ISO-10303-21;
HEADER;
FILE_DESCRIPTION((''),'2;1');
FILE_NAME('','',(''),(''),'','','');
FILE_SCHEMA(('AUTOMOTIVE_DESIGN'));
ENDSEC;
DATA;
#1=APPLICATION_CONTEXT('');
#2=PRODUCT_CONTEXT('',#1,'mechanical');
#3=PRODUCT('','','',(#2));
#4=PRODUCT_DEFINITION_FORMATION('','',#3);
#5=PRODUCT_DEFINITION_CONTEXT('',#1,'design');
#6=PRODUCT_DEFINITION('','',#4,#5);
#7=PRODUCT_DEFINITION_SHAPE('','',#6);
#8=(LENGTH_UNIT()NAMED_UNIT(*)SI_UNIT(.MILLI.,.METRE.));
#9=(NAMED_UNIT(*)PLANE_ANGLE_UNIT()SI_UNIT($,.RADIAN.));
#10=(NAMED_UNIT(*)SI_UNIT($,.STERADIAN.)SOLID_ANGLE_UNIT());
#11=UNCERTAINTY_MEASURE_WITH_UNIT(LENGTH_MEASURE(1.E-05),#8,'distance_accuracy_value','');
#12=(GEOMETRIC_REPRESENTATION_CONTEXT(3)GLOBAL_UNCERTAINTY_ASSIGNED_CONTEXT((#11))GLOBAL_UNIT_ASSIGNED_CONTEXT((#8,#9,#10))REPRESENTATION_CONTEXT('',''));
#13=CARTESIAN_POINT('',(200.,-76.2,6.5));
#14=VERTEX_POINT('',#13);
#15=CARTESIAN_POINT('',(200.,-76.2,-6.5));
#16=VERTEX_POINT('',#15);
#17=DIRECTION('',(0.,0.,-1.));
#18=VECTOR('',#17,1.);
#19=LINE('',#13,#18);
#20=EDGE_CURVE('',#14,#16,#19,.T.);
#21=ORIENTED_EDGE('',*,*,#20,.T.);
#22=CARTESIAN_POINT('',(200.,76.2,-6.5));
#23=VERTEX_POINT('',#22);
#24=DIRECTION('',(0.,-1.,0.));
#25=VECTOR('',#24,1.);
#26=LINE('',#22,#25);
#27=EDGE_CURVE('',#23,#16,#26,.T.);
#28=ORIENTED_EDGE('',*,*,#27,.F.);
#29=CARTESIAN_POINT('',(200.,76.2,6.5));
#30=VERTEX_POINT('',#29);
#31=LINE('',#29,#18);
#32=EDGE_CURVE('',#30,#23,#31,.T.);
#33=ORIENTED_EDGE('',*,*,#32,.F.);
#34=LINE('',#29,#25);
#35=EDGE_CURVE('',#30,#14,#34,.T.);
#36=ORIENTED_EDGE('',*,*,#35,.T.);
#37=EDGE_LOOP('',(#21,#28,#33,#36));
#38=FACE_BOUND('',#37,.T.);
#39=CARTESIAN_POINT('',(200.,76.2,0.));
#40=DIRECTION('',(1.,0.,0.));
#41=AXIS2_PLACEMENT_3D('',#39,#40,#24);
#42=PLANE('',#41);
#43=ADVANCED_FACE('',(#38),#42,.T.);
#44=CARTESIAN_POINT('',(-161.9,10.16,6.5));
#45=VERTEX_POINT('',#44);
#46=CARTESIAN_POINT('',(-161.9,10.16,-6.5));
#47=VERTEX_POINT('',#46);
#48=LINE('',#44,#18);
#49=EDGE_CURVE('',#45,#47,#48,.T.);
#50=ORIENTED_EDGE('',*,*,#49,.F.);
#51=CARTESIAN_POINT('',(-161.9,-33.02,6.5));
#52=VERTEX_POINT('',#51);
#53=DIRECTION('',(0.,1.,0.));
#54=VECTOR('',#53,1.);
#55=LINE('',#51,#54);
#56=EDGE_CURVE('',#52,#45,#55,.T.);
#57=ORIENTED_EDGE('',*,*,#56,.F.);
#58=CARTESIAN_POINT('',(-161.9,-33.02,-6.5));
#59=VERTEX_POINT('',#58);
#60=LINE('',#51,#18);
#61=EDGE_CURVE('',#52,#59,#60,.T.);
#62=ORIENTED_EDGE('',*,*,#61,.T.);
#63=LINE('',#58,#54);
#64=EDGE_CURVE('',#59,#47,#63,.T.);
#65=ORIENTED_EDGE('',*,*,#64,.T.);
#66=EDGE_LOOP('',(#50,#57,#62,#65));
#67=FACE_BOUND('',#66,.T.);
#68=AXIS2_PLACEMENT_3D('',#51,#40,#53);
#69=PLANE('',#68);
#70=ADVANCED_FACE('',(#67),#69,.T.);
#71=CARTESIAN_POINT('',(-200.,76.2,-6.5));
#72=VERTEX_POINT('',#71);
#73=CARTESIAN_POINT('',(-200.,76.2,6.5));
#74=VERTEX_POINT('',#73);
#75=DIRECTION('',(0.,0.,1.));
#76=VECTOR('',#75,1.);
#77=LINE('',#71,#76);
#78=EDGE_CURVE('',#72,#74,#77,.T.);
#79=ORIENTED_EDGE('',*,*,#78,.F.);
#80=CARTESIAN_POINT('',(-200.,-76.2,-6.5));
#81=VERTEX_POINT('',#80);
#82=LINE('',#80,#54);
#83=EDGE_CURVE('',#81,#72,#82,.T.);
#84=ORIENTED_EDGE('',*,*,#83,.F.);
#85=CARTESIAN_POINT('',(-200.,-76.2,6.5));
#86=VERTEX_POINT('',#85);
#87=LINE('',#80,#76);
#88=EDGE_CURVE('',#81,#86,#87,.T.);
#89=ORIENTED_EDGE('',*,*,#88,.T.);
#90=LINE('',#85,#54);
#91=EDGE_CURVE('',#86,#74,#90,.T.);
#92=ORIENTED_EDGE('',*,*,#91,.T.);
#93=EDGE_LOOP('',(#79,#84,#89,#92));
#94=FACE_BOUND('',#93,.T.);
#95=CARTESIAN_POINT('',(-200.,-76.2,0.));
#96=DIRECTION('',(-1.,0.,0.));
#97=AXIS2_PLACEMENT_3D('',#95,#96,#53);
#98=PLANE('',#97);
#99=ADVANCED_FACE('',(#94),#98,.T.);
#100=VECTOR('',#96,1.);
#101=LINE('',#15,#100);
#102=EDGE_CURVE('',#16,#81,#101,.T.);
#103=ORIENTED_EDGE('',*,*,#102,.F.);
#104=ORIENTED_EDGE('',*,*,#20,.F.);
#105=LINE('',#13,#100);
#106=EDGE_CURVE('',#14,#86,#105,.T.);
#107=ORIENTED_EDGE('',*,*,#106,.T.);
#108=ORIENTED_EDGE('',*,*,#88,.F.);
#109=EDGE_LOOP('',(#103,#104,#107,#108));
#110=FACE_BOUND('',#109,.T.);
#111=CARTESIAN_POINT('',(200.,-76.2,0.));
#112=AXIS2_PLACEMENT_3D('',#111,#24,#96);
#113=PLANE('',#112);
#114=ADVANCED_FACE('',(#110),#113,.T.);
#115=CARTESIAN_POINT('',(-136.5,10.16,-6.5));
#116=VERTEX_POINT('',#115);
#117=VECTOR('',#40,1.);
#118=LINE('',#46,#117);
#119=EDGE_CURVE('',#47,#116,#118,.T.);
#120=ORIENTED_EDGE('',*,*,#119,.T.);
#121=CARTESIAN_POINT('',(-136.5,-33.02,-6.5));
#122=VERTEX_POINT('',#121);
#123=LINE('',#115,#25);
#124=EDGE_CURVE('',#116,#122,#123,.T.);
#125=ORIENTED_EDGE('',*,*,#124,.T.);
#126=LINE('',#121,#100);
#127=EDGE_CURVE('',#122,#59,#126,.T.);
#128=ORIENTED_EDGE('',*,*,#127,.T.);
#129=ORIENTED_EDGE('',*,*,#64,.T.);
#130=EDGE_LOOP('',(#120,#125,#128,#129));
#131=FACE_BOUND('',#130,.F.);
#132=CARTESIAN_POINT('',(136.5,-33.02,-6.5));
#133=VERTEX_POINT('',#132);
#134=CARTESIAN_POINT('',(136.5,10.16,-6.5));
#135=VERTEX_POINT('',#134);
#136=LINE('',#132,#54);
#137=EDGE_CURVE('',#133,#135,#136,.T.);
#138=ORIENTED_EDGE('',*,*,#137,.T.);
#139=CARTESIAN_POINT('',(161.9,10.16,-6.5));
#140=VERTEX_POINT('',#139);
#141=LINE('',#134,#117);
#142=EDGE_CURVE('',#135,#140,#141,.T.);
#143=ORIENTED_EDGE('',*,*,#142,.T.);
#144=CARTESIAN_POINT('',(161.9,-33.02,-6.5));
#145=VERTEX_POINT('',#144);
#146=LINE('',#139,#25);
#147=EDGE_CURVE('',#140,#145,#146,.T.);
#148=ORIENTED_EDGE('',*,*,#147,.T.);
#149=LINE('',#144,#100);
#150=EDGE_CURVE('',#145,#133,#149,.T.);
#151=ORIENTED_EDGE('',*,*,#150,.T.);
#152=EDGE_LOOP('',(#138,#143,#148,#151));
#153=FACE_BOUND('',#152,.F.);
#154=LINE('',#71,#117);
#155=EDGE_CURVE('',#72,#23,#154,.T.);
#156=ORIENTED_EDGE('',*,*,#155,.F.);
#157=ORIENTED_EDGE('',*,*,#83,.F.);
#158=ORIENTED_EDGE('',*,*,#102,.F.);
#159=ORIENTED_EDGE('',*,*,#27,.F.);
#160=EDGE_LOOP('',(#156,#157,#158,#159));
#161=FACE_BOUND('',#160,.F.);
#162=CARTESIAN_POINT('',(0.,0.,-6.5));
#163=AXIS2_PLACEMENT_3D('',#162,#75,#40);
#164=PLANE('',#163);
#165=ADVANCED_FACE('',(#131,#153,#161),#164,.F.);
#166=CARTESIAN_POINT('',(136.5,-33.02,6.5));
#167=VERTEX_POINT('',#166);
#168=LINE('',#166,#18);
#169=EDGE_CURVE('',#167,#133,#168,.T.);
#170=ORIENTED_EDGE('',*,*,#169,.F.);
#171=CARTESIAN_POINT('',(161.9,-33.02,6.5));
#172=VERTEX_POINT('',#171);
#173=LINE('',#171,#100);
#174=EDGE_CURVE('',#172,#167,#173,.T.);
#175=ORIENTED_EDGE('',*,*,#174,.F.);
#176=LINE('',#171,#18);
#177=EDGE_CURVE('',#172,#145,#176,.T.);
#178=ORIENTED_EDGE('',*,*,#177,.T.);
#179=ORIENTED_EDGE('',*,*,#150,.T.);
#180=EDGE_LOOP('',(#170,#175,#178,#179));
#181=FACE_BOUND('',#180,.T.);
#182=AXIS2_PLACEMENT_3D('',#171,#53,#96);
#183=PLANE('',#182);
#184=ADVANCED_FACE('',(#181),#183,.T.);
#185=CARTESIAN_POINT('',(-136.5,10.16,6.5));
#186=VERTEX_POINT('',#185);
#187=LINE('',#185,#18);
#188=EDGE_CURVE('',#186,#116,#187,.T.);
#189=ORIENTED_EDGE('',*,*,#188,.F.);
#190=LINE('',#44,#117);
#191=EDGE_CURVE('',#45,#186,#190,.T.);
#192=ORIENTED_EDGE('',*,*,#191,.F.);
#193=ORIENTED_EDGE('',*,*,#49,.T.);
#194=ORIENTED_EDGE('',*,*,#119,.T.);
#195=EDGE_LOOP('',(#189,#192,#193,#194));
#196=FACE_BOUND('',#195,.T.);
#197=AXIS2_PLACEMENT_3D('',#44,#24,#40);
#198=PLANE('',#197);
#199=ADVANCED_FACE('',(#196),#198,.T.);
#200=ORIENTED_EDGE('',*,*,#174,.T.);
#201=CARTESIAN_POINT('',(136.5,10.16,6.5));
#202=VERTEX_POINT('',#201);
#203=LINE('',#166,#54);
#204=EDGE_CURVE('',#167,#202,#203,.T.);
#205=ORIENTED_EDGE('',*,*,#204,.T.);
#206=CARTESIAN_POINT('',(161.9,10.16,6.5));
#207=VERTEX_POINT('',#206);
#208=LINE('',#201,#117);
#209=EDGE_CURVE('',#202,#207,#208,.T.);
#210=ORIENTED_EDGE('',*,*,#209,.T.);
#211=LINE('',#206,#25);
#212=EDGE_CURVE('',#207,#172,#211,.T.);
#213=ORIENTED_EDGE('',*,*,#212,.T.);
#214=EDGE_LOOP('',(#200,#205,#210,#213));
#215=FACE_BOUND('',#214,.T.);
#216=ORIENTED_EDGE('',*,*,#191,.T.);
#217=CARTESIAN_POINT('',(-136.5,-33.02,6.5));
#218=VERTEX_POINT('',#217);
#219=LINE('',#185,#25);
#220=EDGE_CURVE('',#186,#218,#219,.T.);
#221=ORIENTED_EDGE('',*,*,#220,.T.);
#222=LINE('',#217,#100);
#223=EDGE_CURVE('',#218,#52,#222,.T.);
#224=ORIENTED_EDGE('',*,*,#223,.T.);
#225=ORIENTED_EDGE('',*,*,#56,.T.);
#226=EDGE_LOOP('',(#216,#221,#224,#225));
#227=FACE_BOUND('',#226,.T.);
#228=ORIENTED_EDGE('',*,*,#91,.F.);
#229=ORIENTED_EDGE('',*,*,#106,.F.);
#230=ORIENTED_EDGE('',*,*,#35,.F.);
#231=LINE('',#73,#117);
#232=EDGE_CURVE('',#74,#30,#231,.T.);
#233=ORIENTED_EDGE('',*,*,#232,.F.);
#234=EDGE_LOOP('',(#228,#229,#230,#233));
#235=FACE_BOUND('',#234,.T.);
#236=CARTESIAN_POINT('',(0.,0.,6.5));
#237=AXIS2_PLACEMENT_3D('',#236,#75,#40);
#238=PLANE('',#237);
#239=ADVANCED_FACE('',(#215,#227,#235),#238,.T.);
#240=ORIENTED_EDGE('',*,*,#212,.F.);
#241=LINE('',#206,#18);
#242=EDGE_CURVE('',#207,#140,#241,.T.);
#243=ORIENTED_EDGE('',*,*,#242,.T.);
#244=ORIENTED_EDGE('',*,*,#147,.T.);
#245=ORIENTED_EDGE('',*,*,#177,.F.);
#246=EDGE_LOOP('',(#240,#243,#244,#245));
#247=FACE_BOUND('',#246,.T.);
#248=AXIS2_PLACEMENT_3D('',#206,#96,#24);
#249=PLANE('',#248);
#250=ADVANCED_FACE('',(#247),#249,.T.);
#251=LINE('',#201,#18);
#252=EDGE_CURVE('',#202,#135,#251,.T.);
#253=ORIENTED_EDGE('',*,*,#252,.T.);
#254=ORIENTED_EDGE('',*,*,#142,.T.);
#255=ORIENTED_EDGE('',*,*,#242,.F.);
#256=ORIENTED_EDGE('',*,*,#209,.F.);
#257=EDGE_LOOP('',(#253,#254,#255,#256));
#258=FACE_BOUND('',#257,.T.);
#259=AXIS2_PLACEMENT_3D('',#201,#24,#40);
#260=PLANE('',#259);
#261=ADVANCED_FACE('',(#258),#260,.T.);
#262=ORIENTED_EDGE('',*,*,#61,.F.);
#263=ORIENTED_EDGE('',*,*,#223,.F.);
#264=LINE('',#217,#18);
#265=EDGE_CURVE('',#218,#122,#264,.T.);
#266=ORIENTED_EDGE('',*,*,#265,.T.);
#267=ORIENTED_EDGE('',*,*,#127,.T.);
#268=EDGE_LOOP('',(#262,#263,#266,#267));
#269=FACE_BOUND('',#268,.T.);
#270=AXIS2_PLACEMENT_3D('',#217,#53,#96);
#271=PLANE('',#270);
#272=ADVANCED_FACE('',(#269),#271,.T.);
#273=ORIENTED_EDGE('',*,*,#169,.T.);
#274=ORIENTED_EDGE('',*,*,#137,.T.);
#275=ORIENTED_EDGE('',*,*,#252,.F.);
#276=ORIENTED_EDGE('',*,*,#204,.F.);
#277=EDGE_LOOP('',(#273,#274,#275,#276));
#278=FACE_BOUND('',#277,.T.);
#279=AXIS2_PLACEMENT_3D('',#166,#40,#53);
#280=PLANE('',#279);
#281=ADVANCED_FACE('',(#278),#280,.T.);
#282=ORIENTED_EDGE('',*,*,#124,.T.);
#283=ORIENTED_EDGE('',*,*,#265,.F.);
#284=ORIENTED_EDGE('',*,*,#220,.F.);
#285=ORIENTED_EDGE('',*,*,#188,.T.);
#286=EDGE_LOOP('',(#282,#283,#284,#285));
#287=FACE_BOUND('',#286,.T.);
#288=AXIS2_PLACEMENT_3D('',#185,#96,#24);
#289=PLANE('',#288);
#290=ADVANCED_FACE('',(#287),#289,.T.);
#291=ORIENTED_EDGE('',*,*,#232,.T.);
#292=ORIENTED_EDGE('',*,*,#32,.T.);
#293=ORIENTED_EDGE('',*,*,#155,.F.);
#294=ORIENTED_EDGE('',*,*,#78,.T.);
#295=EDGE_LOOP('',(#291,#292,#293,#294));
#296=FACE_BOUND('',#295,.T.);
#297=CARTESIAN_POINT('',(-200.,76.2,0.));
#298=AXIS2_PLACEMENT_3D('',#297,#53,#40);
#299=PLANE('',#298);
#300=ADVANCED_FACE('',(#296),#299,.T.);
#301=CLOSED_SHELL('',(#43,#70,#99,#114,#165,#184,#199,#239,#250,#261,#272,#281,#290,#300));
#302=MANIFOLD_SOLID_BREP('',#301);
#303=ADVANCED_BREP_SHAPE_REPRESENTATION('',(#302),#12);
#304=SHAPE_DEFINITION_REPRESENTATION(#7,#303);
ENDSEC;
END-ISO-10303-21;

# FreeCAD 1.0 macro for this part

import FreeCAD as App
import Part
import Sketcher
Q = App.Units.Quantity

doc = App.newDocument("Part")
params = doc.addObject("Spreadsheet::Sheet", "Params")
for row, (alias, value) in enumerate([
    ("sketch1_height", "6 in"),
    ("pad1_length", "0.511811 in"),
    ("sketch2_width", "1 in"),
    ("sketch2_height", "1.7 in"),
    ("pocket1_length", "0.511811 in"),
], start=1):
    params.set(f"A{row}", alias)
    params.set(f"B{row}", "=" + value)
    params.setAlias(f"B{row}", alias)

body = doc.addObject("PartDesign::Body", "Body")

# Sketch on XY plane
sketch1 = body.newObject("Sketcher::SketchObject", "Sketch")
sketch1.AttachmentSupport = (doc.getObject("XY_Plane"), [""])
sketch1.MapMode = "FlatFace"
sketch1.addGeometry([
    Part.LineSegment(App.Vector(200, 76.2, 0), App.Vector(-200, 76.2, 0)),
    Part.LineSegment(App.Vector(-200, 76.2, 0), App.Vector(-200, -76.2, 0)),
    Part.LineSegment(App.Vector(-200, -76.2, 0), App.Vector(200, -76.2, 0)),
    Part.LineSegment(App.Vector(200, -76.2, 0), App.Vector(200, 76.2, 0)),
], False)
sketch1.addConstraint([
    Sketcher.Constraint("Coincident", 0, 2, 1, 1),
    Sketcher.Constraint("Coincident", 1, 2, 2, 1),
    Sketcher.Constraint("Coincident", 2, 2, 3, 1),
    Sketcher.Constraint("Coincident", 3, 2, 0, 1),
    Sketcher.Constraint("Horizontal", 0),
    Sketcher.Constraint("Vertical", 1),
    Sketcher.Constraint("Horizontal", 2),
    Sketcher.Constraint("Vertical", 3),
    Sketcher.Constraint("Symmetric", 0, 2, 2, 2, -1, 1),
    Sketcher.Constraint("DistanceY", 1, 2, 1, 1, Q("6 in")),
    Sketcher.Constraint("DistanceX", 0, 2, 0, 1, Q("400 mm")),
])
sketch1.setExpression("Constraints[9]", "Params.sketch1_height")
pad1 = body.newObject("PartDesign::Pad", "Pad")
pad1.Profile = sketch1
pad1.setExpression("Length", "Params.pad1_length")
pad1.Midplane = True

# Sketch on XY plane
sketch2 = body.newObject("Sketcher::SketchObject", "Sketch001")
sketch2.AttachmentSupport = (doc.getObject("XY_Plane"), [""])
sketch2.MapMode = "FlatFace"
sketch2.AttachmentOffset = App.Placement(App.Vector(0, 0, 0.2559055 * 25.4), App.Rotation())
sketch2.addGeometry([
    Part.LineSegment(App.Vector(-136.5, 10.16, 0), App.Vector(-161.9, 10.16, 0)),  # 0
    Part.LineSegment(App.Vector(-161.9, 10.16, 0), App.Vector(-161.9, -33.02, 0)),  # 1
    Part.LineSegment(App.Vector(-161.9, -33.02, 0), App.Vector(-136.5, -33.02, 0)),  # 2
    Part.LineSegment(App.Vector(-136.5, -33.02, 0), App.Vector(-136.5, 10.16, 0)),  # 3
    Part.LineSegment(App.Vector(136.5, -33.02, 0), App.Vector(161.9, -33.02, 0)),  # 4
    Part.LineSegment(App.Vector(161.9, -33.02, 0), App.Vector(161.9, 10.16, 0)),  # 5
    Part.LineSegment(App.Vector(161.9, 10.16, 0), App.Vector(136.5, 10.16, 0)),  # 6
    Part.LineSegment(App.Vector(136.5, 10.16, 0), App.Vector(136.5, -33.02, 0)),  # 7
], False)
sketch2.addConstraint([
    Sketcher.Constraint("Coincident", 0, 2, 1, 1),
    Sketcher.Constraint("Coincident", 1, 2, 2, 1),
    Sketcher.Constraint("Coincident", 2, 2, 3, 1),
    Sketcher.Constraint("Coincident", 3, 2, 0, 1),
    Sketcher.Constraint("Coincident", 4, 2, 5, 1),
    Sketcher.Constraint("Coincident", 5, 2, 6, 1),
    Sketcher.Constraint("Coincident", 6, 2, 7, 1),
    Sketcher.Constraint("Coincident", 7, 2, 4, 1),
    Sketcher.Constraint("Horizontal", 0),
    Sketcher.Constraint("Vertical", 1),
    Sketcher.Constraint("Horizontal", 2),
    Sketcher.Constraint("Vertical", 3),
    Sketcher.Constraint("Horizontal", 4),
    Sketcher.Constraint("Vertical", 5),
    Sketcher.Constraint("Horizontal", 6),
    Sketcher.Constraint("Vertical", 7),
    Sketcher.Constraint("Symmetric", 1, 2, 4, 2, -2),
    Sketcher.Constraint("Symmetric", 3, 2, 6, 2, -2),
    Sketcher.Constraint("DistanceX", 0, 2, 0, 1, Q("1 in")),
    Sketcher.Constraint("DistanceY", 1, 2, 1, 1, Q("1.7 in")),
    Sketcher.Constraint("DistanceY", -1, 1, 0, 2, Q("0.4 in")),
    Sketcher.Constraint("DistanceX", 0, 2, -1, 1, Q("161.9 mm")),
])
sketch2.setExpression("Constraints[18]", "Params.sketch2_width")
sketch2.setExpression("Constraints[19]", "Params.sketch2_height")
pocket1 = body.newObject("PartDesign::Pocket", "Pocket")
pocket1.Profile = sketch2
pocket1.setExpression("Length", "Params.pocket1_length")

doc.recompute()
